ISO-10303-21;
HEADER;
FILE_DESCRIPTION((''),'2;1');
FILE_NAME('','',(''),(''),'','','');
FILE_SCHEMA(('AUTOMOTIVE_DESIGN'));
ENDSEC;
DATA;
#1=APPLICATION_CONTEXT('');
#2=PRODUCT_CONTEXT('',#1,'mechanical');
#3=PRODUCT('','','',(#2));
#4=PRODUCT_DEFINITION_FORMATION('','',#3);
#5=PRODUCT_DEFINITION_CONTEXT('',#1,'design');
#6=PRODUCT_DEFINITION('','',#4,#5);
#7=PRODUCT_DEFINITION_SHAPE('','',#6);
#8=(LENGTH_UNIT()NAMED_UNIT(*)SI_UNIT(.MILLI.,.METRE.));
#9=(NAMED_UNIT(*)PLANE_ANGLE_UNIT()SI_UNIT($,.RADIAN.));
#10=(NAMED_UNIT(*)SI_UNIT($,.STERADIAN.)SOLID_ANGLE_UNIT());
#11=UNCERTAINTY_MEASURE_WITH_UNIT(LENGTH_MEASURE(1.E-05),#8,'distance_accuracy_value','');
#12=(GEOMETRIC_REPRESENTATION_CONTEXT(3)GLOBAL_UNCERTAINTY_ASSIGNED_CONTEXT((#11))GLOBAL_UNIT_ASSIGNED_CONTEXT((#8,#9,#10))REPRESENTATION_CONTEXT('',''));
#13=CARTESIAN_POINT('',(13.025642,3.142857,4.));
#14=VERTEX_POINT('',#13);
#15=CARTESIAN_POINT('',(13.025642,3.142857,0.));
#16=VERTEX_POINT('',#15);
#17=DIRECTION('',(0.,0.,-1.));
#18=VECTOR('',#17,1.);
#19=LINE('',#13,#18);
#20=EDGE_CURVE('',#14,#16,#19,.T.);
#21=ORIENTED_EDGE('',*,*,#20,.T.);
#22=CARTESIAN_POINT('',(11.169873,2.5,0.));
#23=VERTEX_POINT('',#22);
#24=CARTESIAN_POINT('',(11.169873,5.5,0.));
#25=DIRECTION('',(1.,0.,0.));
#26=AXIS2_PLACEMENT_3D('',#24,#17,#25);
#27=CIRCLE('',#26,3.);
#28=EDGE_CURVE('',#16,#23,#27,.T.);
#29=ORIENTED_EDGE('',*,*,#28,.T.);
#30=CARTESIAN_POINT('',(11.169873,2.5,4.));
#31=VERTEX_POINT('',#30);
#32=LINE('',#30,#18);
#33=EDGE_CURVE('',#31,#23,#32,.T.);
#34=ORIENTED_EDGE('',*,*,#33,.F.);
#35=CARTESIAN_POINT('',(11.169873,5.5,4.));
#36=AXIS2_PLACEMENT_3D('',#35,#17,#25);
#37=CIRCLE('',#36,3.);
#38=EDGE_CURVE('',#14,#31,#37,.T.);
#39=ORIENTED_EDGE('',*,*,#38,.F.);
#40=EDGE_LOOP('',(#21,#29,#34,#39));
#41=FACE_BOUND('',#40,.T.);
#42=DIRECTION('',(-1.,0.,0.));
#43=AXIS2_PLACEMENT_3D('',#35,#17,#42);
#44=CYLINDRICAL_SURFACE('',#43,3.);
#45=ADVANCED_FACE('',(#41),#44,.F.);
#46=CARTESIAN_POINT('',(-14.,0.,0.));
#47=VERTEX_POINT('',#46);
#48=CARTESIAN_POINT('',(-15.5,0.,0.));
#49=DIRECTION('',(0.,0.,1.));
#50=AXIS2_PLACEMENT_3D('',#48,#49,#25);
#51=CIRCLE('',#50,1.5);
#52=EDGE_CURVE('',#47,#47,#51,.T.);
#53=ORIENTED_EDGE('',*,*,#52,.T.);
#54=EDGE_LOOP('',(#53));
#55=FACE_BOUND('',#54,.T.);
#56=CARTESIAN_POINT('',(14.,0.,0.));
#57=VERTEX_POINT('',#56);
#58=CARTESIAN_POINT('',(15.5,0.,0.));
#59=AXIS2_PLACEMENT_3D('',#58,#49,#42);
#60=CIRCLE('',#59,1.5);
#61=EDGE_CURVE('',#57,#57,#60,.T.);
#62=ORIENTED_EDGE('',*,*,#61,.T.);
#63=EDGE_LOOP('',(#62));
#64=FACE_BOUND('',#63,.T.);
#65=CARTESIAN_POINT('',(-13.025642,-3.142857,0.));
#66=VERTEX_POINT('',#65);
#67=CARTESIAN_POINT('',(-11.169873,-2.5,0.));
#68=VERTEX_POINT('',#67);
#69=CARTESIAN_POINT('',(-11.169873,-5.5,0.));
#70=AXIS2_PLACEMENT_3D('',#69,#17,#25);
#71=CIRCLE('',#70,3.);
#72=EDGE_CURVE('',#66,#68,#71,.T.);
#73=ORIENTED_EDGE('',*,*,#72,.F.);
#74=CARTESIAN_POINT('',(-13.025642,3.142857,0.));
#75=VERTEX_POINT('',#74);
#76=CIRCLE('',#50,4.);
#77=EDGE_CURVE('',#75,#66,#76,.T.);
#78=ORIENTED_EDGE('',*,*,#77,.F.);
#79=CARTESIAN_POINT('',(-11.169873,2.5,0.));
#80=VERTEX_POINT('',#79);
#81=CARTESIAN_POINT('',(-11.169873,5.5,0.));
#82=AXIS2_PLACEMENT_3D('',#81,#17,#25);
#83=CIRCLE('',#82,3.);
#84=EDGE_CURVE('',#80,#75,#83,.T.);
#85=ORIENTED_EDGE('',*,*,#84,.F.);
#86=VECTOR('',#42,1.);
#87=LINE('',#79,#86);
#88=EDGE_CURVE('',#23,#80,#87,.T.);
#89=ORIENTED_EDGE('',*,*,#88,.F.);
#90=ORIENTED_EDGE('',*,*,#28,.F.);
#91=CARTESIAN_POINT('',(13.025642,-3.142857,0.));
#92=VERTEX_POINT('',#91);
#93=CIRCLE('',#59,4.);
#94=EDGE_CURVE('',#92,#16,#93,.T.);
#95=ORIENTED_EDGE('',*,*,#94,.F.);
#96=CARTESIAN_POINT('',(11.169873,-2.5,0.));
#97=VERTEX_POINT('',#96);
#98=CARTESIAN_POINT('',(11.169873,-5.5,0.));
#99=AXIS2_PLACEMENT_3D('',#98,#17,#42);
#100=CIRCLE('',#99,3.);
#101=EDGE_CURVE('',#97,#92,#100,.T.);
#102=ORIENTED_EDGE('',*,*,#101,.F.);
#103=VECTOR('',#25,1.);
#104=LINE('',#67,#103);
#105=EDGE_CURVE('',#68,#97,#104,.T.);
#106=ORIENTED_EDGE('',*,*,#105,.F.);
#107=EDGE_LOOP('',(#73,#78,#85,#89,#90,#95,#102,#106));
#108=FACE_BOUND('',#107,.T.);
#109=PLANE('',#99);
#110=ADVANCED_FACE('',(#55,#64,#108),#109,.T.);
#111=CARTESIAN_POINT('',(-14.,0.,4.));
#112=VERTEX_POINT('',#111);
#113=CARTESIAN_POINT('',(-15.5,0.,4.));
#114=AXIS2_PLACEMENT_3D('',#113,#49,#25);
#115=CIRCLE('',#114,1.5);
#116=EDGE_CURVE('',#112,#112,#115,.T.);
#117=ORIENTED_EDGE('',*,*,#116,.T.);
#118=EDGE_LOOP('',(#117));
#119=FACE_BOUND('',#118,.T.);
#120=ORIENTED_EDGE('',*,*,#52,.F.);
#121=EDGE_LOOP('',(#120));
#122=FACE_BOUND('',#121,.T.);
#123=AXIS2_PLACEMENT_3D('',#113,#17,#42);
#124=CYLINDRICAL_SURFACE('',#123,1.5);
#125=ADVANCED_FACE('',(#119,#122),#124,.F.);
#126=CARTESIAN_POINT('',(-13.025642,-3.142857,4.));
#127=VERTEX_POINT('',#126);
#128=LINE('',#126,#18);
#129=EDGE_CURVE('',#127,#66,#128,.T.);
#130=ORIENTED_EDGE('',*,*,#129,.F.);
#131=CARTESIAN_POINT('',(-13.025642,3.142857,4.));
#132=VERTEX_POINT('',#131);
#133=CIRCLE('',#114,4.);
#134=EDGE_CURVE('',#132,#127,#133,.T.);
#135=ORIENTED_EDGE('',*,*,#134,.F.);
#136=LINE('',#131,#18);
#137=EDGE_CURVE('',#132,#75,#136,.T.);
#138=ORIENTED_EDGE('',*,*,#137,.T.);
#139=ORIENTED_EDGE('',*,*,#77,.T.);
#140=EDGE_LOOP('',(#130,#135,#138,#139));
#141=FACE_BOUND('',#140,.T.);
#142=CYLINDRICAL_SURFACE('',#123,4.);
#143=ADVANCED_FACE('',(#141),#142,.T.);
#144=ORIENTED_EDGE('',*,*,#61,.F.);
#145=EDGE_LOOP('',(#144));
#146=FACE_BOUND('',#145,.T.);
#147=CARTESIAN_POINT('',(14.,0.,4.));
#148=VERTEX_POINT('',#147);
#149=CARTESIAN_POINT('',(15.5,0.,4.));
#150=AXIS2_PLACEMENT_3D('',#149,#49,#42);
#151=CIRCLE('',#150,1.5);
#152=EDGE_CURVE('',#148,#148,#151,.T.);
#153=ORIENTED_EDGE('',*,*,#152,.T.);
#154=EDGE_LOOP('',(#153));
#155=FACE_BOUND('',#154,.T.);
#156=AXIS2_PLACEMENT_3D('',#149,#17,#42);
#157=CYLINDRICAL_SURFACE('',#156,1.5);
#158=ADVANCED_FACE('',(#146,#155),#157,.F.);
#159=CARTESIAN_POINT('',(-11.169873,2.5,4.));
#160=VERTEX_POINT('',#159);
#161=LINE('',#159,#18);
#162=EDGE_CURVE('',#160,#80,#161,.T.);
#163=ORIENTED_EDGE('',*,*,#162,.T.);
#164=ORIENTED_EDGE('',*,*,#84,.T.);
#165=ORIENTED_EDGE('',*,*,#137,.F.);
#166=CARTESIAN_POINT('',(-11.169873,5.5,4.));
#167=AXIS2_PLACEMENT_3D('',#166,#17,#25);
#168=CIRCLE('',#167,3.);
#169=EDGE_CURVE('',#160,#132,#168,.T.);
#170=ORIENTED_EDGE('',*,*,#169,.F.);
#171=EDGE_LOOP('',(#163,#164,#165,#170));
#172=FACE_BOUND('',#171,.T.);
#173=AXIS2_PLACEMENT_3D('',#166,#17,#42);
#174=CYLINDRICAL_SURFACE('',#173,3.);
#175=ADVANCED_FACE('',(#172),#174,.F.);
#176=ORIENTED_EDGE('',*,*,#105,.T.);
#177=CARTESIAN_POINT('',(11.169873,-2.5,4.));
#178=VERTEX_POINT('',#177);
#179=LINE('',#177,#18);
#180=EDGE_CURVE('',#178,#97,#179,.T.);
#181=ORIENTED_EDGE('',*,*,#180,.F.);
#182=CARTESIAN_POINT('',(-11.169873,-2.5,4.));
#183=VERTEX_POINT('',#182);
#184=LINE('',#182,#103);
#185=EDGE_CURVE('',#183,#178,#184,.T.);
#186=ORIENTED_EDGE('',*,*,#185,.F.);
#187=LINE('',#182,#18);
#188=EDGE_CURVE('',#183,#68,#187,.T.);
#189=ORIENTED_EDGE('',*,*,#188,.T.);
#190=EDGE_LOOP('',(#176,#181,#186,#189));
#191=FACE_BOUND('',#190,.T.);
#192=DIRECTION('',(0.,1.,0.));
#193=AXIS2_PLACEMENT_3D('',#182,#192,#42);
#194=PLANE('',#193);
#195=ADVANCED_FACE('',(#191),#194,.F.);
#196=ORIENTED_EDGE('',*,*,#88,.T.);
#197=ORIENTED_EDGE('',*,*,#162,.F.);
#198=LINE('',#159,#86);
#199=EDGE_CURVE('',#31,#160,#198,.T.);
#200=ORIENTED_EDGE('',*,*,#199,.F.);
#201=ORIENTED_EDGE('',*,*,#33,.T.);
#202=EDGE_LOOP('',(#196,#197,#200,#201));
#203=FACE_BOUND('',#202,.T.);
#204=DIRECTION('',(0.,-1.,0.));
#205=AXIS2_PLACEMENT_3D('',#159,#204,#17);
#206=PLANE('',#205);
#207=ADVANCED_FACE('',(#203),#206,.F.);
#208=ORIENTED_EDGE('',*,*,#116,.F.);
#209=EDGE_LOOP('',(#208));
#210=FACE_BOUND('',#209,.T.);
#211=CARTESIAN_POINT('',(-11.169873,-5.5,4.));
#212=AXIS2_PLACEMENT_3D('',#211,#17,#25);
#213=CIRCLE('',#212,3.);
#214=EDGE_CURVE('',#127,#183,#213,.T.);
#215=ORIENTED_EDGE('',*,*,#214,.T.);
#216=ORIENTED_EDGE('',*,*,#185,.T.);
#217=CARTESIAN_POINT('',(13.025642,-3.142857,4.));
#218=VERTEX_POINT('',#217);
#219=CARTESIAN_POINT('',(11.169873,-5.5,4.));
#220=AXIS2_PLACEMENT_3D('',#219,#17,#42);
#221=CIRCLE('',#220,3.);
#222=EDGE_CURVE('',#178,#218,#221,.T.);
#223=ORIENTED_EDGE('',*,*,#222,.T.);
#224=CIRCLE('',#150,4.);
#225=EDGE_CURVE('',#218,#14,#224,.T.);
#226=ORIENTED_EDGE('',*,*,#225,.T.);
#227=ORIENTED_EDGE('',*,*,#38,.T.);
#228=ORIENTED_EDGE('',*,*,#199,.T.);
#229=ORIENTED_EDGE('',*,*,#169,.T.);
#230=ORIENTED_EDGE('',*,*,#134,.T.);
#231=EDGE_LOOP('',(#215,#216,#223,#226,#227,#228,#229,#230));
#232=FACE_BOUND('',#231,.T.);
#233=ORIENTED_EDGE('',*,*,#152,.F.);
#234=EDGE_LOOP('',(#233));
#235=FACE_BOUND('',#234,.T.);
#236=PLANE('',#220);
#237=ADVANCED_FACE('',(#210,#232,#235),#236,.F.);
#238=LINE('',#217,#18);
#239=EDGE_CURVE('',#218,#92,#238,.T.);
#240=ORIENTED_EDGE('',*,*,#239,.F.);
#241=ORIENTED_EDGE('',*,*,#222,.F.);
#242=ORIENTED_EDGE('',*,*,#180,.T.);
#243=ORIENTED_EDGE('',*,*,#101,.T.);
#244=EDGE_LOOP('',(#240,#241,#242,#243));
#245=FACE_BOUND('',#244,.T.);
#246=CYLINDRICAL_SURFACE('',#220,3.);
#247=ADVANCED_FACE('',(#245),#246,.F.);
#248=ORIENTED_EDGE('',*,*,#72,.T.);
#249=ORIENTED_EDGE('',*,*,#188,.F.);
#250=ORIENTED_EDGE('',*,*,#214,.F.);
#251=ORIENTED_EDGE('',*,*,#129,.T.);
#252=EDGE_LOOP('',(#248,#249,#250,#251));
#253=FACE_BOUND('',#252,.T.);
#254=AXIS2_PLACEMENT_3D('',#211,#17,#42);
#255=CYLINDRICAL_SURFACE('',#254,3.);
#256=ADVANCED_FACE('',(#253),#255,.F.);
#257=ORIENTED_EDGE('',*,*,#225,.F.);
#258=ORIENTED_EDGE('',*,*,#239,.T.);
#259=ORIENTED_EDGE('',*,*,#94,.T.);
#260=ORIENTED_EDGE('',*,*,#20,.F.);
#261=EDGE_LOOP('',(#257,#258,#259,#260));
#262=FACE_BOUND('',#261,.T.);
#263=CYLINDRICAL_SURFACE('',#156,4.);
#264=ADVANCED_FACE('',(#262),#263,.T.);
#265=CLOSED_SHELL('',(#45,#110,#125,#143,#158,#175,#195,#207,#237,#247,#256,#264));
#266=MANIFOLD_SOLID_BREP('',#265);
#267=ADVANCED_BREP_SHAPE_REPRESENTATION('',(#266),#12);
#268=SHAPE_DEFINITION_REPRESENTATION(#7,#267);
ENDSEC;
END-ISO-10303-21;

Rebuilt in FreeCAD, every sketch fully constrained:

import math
import FreeCAD as App
import Part
import Sketcher
from FreeCAD import Vector

doc = App.newDocument("Part")
body = doc.addObject("PartDesign::Body", "Body")

# Sketch on XY plane
sketch1 = doc.addObject("Sketcher::SketchObject", "Sketch")
body.addObject(sketch1)
sketch1.AttachmentSupport = (doc.XY_Plane, [""])
sketch1.MapMode = "FlatFace"
sketch1.addGeometry(Part.LineSegment(Vector(-11.169873, -2.5, 0), Vector(11.169873, -2.5, 0)), False)
sketch1.addGeometry(Part.ArcOfCircle(Part.Circle(Vector(11.169873, -5.5, 0), Vector(0, 0, 1), 3), math.radians(51.786789), math.radians(90)), False)
sketch1.addGeometry(Part.ArcOfCircle(Part.Circle(Vector(15.5, 0, 0), Vector(0, 0, 1), 4), math.radians(-128.213211), math.radians(128.213211)), False)
sketch1.addGeometry(Part.ArcOfCircle(Part.Circle(Vector(11.169873, 5.5, 0), Vector(0, 0, 1), 3), math.radians(-90), math.radians(-51.786789)), False)
sketch1.addGeometry(Part.LineSegment(Vector(11.169873, 2.5, 0), Vector(-11.169873, 2.5, 0)), False)
sketch1.addGeometry(Part.ArcOfCircle(Part.Circle(Vector(-11.169873, 5.5, 0), Vector(0, 0, 1), 3), math.radians(-128.213211), math.radians(-90)), False)
sketch1.addGeometry(Part.ArcOfCircle(Part.Circle(Vector(-15.5, 0, 0), Vector(0, 0, 1), 4), math.radians(51.786789), math.radians(308.213211)), False)
sketch1.addGeometry(Part.ArcOfCircle(Part.Circle(Vector(-11.169873, -5.5, 0), Vector(0, 0, 1), 3), math.radians(90), math.radians(128.213211)), False)
sketch1.addGeometry(Part.Circle(Vector(-15.5, 0, 0), Vector(0, 0, 1), 1.5), False)
sketch1.addGeometry(Part.Circle(Vector(15.5, 0, 0), Vector(0, 0, 1), 1.5), False)
sketch1.addConstraint(Sketcher.Constraint("Tangent", 0, 2, 1, 2))
sketch1.addConstraint(Sketcher.Constraint("Tangent", 1, 1, 2, 1))
sketch1.addConstraint(Sketcher.Constraint("Tangent", 2, 2, 3, 2))
sketch1.addConstraint(Sketcher.Constraint("Tangent", 3, 1, 4, 1))
sketch1.addConstraint(Sketcher.Constraint("Tangent", 4, 2, 5, 2))
sketch1.addConstraint(Sketcher.Constraint("Tangent", 5, 1, 6, 1))
sketch1.addConstraint(Sketcher.Constraint("Tangent", 6, 2, 7, 2))
sketch1.addConstraint(Sketcher.Constraint("Tangent", 7, 1, 0, 1))
sketch1.addConstraint(Sketcher.Constraint("Horizontal", 0))
sketch1.addConstraint(Sketcher.Constraint("Horizontal", 4))
sketch1.addConstraint(Sketcher.Constraint("Coincident", 8, 3, 6, 3))
sketch1.addConstraint(Sketcher.Constraint("Coincident", 9, 3, 2, 3))
sketch1.addConstraint(Sketcher.Constraint("Equal", 1, 3))
sketch1.addConstraint(Sketcher.Constraint("Equal", 3, 5))
sketch1.addConstraint(Sketcher.Constraint("Equal", 2, 6))
sketch1.addConstraint(Sketcher.Constraint("Equal", 5, 7))
sketch1.addConstraint(Sketcher.Constraint("Equal", 8, 9))
sketch1.addConstraint(Sketcher.Constraint("Symmetric", 1, 3, 5, 3, -1, 1))
sketch1.addConstraint(Sketcher.Constraint("Symmetric", 2, 3, 6, 3, -2))
sketch1.addConstraint(Sketcher.Constraint("Diameter", 8, 3.0))
sketch1.addConstraint(Sketcher.Constraint("Radius", 1, 3.0))
sketch1.addConstraint(Sketcher.Constraint("Radius", 2, 4.0))
sketch1.addConstraint(Sketcher.Constraint("DistanceY", 1, 3, 3, 3, 11.0))
sketch1.addConstraint(Sketcher.Constraint("DistanceX", 6, 3, 2, 3, 31.0))
pad1 = doc.addObject("PartDesign::Pad", "Pad")
body.addObject(pad1)
pad1.Profile = sketch1
pad1.Length = 4

doc.recompute()
